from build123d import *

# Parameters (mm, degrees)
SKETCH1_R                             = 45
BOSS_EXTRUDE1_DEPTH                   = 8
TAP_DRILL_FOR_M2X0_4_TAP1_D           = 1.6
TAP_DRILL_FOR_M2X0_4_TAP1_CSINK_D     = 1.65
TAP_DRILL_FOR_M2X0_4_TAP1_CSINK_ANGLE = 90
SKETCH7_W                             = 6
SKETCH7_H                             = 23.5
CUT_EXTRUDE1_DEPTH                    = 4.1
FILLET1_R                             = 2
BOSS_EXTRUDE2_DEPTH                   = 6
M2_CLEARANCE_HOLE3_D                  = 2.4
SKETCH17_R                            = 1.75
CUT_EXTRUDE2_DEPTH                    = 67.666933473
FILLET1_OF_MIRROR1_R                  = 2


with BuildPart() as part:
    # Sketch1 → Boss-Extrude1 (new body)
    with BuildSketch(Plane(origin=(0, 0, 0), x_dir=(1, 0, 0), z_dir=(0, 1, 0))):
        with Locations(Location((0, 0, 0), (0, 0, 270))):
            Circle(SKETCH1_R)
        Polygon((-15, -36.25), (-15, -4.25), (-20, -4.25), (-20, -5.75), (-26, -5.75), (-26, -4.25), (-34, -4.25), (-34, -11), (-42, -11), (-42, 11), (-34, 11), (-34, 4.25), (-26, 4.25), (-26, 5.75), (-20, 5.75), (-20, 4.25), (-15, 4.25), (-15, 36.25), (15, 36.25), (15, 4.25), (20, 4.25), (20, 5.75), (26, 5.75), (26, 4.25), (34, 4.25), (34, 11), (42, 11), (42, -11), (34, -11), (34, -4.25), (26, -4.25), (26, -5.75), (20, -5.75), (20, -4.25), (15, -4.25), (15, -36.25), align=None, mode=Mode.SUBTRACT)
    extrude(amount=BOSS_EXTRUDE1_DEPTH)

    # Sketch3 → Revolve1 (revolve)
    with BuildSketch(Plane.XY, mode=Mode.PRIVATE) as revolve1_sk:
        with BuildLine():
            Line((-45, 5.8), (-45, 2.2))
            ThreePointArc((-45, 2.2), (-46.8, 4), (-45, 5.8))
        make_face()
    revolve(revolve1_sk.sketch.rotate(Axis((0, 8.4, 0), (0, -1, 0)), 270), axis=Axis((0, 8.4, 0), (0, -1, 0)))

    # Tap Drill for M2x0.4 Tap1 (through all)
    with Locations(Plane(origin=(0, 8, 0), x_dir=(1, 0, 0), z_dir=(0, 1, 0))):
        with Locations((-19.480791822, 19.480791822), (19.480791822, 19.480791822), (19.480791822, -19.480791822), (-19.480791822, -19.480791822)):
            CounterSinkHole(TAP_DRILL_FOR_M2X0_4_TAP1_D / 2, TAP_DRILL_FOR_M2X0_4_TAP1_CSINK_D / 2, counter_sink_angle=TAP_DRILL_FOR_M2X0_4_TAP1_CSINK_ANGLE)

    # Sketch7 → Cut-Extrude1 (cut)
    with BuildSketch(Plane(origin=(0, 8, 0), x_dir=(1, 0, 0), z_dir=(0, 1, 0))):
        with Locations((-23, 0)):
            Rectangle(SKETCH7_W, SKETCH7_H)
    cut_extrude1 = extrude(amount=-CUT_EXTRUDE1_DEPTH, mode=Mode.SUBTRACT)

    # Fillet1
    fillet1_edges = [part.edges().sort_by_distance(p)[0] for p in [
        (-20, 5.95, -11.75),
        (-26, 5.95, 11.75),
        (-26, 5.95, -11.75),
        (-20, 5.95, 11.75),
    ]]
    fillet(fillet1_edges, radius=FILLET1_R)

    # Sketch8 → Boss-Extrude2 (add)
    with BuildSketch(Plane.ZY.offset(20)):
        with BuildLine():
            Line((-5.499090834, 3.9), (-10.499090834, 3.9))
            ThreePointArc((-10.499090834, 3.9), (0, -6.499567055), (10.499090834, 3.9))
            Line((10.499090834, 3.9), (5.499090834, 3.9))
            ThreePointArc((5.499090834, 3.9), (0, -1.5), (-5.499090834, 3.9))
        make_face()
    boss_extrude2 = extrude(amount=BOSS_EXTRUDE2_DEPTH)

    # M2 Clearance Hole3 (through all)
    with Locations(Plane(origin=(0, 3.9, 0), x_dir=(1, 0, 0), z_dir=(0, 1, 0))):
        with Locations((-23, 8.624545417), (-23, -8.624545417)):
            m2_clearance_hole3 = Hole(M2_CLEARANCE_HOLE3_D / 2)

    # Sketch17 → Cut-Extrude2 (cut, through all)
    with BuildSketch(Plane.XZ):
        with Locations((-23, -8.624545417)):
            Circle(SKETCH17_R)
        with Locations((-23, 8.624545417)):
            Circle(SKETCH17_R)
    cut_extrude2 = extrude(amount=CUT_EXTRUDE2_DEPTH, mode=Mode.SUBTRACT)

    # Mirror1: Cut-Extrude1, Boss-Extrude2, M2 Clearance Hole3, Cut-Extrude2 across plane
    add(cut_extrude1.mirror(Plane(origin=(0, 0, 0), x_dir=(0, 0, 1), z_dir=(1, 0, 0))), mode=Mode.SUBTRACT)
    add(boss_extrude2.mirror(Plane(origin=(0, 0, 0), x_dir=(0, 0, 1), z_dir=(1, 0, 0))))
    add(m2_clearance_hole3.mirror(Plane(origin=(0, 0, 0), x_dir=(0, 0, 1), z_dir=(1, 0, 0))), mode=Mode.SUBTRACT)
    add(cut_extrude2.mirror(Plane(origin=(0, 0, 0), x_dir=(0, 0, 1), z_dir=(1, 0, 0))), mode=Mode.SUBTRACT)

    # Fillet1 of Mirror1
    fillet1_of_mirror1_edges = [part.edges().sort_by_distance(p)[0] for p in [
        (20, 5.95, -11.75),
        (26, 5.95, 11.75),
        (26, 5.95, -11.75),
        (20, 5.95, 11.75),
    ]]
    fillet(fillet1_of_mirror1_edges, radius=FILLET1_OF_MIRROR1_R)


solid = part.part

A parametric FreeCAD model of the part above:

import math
import FreeCAD as App
import Part
import Sketcher
from FreeCAD import Vector


def edges_at(feature, points):
    """Names of the edges that pass closest to the given points."""
    edges = feature.Shape.Edges
    near = lambda p: min(range(len(edges)), key=lambda i: edges[i].distToShape(Part.Vertex(*p))[0])
    return sorted({f"Edge{near(p) + 1}" for p in points})

doc = App.newDocument("Part")
body = doc.addObject("PartDesign::Body", "Body")

# Sketch on XZ plane
sketch1 = body.newObject("Sketcher::SketchObject", "Sketch")
sketch1.AttachmentSupport = (doc.getObject("XZ_Plane"), [""])
sketch1.MapMode = "FlatFace"
sketch1.addGeometry([
    Part.Circle(Vector(0, 0, 0), Vector(0, 0, 1), 45),  # 0
    Part.LineSegment(Vector(15, 36.25, 0), Vector(-15, 36.25, 0)),  # 1
    Part.LineSegment(Vector(-15, 36.25, 0), Vector(-15, 4.25, 0)),  # 2
    Part.LineSegment(Vector(-15, 4.25, 0), Vector(-20, 4.25, 0)),  # 3
    Part.LineSegment(Vector(-20, 4.25, 0), Vector(-20, 5.75, 0)),  # 4
    Part.LineSegment(Vector(-20, 5.75, 0), Vector(-26, 5.75, 0)),  # 5
    Part.LineSegment(Vector(-26, 5.75, 0), Vector(-26, 4.25, 0)),  # 6
    Part.LineSegment(Vector(-26, 4.25, 0), Vector(-34, 4.25, 0)),  # 7
    Part.LineSegment(Vector(-34, 4.25, 0), Vector(-34, 11, 0)),  # 8
    Part.LineSegment(Vector(-34, 11, 0), Vector(-42, 11, 0)),  # 9
    Part.LineSegment(Vector(-42, 11, 0), Vector(-42, -11, 0)),  # 10
    Part.LineSegment(Vector(-42, -11, 0), Vector(-34, -11, 0)),  # 11
    Part.LineSegment(Vector(-34, -11, 0), Vector(-34, -4.25, 0)),  # 12
    Part.LineSegment(Vector(-34, -4.25, 0), Vector(-26, -4.25, 0)),  # 13
    Part.LineSegment(Vector(-26, -4.25, 0), Vector(-26, -5.75, 0)),  # 14
    Part.LineSegment(Vector(-26, -5.75, 0), Vector(-20, -5.75, 0)),  # 15
    Part.LineSegment(Vector(-20, -5.75, 0), Vector(-20, -4.25, 0)),  # 16
    Part.LineSegment(Vector(-20, -4.25, 0), Vector(-15, -4.25, 0)),  # 17
    Part.LineSegment(Vector(-15, -4.25, 0), Vector(-15, -36.25, 0)),  # 18
    Part.LineSegment(Vector(-15, -36.25, 0), Vector(15, -36.25, 0)),  # 19
    Part.LineSegment(Vector(15, -36.25, 0), Vector(15, -4.25, 0)),  # 20
    Part.LineSegment(Vector(15, -4.25, 0), Vector(20, -4.25, 0)),  # 21
    Part.LineSegment(Vector(20, -4.25, 0), Vector(20, -5.75, 0)),  # 22
    Part.LineSegment(Vector(20, -5.75, 0), Vector(26, -5.75, 0)),  # 23
    Part.LineSegment(Vector(26, -5.75, 0), Vector(26, -4.25, 0)),  # 24
    Part.LineSegment(Vector(26, -4.25, 0), Vector(34, -4.25, 0)),  # 25
    Part.LineSegment(Vector(34, -4.25, 0), Vector(34, -11, 0)),  # 26
    Part.LineSegment(Vector(34, -11, 0), Vector(42, -11, 0)),  # 27
    Part.LineSegment(Vector(42, -11, 0), Vector(42, 11, 0)),  # 28
    Part.LineSegment(Vector(42, 11, 0), Vector(34, 11, 0)),  # 29
    Part.LineSegment(Vector(34, 11, 0), Vector(34, 4.25, 0)),  # 30
    Part.LineSegment(Vector(34, 4.25, 0), Vector(26, 4.25, 0)),  # 31
    Part.LineSegment(Vector(26, 4.25, 0), Vector(26, 5.75, 0)),  # 32
    Part.LineSegment(Vector(26, 5.75, 0), Vector(20, 5.75, 0)),  # 33
    Part.LineSegment(Vector(20, 5.75, 0), Vector(20, 4.25, 0)),  # 34
    Part.LineSegment(Vector(20, 4.25, 0), Vector(15, 4.25, 0)),  # 35
    Part.LineSegment(Vector(15, 4.25, 0), Vector(15, 36.25, 0)),  # 36
], False)
sketch1.addConstraint([
    Sketcher.Constraint("Coincident", 1, 2, 2, 1),
    Sketcher.Constraint("Coincident", 2, 2, 3, 1),
    Sketcher.Constraint("Coincident", 3, 2, 4, 1),
    Sketcher.Constraint("Coincident", 4, 2, 5, 1),
    Sketcher.Constraint("Coincident", 5, 2, 6, 1),
    Sketcher.Constraint("Coincident", 6, 2, 7, 1),
    Sketcher.Constraint("Coincident", 7, 2, 8, 1),
    Sketcher.Constraint("Coincident", 8, 2, 9, 1),
    Sketcher.Constraint("Coincident", 9, 2, 10, 1),
    Sketcher.Constraint("Coincident", 10, 2, 11, 1),
    Sketcher.Constraint("Coincident", 11, 2, 12, 1),
    Sketcher.Constraint("Coincident", 12, 2, 13, 1),
    Sketcher.Constraint("Coincident", 13, 2, 14, 1),
    Sketcher.Constraint("Coincident", 14, 2, 15, 1),
    Sketcher.Constraint("Coincident", 15, 2, 16, 1),
    Sketcher.Constraint("Coincident", 16, 2, 17, 1),
    Sketcher.Constraint("Coincident", 17, 2, 18, 1),
    Sketcher.Constraint("Coincident", 18, 2, 19, 1),
    Sketcher.Constraint("Coincident", 19, 2, 20, 1),
    Sketcher.Constraint("Coincident", 20, 2, 21, 1),
    Sketcher.Constraint("Coincident", 21, 2, 22, 1),
    Sketcher.Constraint("Coincident", 22, 2, 23, 1),
    Sketcher.Constraint("Coincident", 23, 2, 24, 1),
    Sketcher.Constraint("Coincident", 24, 2, 25, 1),
    Sketcher.Constraint("Coincident", 25, 2, 26, 1),
    Sketcher.Constraint("Coincident", 26, 2, 27, 1),
    Sketcher.Constraint("Coincident", 27, 2, 28, 1),
    Sketcher.Constraint("Coincident", 28, 2, 29, 1),
    Sketcher.Constraint("Coincident", 29, 2, 30, 1),
    Sketcher.Constraint("Coincident", 30, 2, 31, 1),
    Sketcher.Constraint("Coincident", 31, 2, 32, 1),
    Sketcher.Constraint("Coincident", 32, 2, 33, 1),
    Sketcher.Constraint("Coincident", 33, 2, 34, 1),
    Sketcher.Constraint("Coincident", 34, 2, 35, 1),
    Sketcher.Constraint("Coincident", 35, 2, 36, 1),
    Sketcher.Constraint("Coincident", 36, 2, 1, 1),
    Sketcher.Constraint("Horizontal", 1),
    Sketcher.Constraint("Vertical", 2),
    Sketcher.Constraint("Horizontal", 3),
    Sketcher.Constraint("Vertical", 4),
    Sketcher.Constraint("Horizontal", 5),
    Sketcher.Constraint("Vertical", 6),
    Sketcher.Constraint("Horizontal", 7),
    Sketcher.Constraint("Vertical", 8),
    Sketcher.Constraint("Horizontal", 9),
    Sketcher.Constraint("Vertical", 10),
    Sketcher.Constraint("Horizontal", 11),
    Sketcher.Constraint("Vertical", 12),
    Sketcher.Constraint("Horizontal", 13),
    Sketcher.Constraint("Vertical", 14),
    Sketcher.Constraint("Horizontal", 15),
    Sketcher.Constraint("Vertical", 16),
    Sketcher.Constraint("Horizontal", 17),
    Sketcher.Constraint("Vertical", 18),
    Sketcher.Constraint("Horizontal", 19),
    Sketcher.Constraint("Vertical", 20),
    Sketcher.Constraint("Horizontal", 21),
    Sketcher.Constraint("Vertical", 22),
    Sketcher.Constraint("Horizontal", 23),
    Sketcher.Constraint("Vertical", 24),
    Sketcher.Constraint("Horizontal", 25),
    Sketcher.Constraint("Vertical", 26),
    Sketcher.Constraint("Horizontal", 27),
    Sketcher.Constraint("Vertical", 28),
    Sketcher.Constraint("Horizontal", 29),
    Sketcher.Constraint("Vertical", 30),
    Sketcher.Constraint("Horizontal", 31),
    Sketcher.Constraint("Vertical", 32),
    Sketcher.Constraint("Horizontal", 33),
    Sketcher.Constraint("Vertical", 34),
    Sketcher.Constraint("Horizontal", 35),
    Sketcher.Constraint("Vertical", 36),
    Sketcher.Constraint("Coincident", 0, 3, -1, 1),
    Sketcher.Constraint("Symmetric", 1, 2, 19, 2, -1, 1),
    Sketcher.Constraint("Symmetric", 3, 2, 21, 2, -1, 1),
    Sketcher.Constraint("Symmetric", 5, 2, 23, 2, -1, 1),
    Sketcher.Constraint("Symmetric", 7, 2, 25, 2, -1, 1),
    Sketcher.Constraint("Symmetric", 9, 2, 27, 2, -1, 1),
    Sketcher.Constraint("Symmetric", 11, 2, 29, 2, -1, 1),
    Sketcher.Constraint("Symmetric", 13, 2, 31, 2, -1, 1),
    Sketcher.Constraint("Symmetric", 15, 2, 33, 2, -1, 1),
    Sketcher.Constraint("Symmetric", 17, 2, 35, 2, -1, 1),
    Sketcher.Constraint("Symmetric", 17, 2, 20, 2, -2),
    Sketcher.Constraint("Symmetric", 15, 2, 22, 2, -2),
    Sketcher.Constraint("Symmetric", 13, 2, 24, 2, -2),
    Sketcher.Constraint("Symmetric", 11, 2, 26, 2, -2),
    Sketcher.Constraint("Horizontal", 3, 2, 6, 2),
    Sketcher.Constraint("Equal", 7, 9),
    Sketcher.Constraint("Diameter", 0, 90.0),
    Sketcher.Constraint("DistanceX", 1, 2, 1, 1, 30.0),
    Sketcher.Constraint("DistanceX", 3, 2, 3, 1, 5.0),
    Sketcher.Constraint("DistanceX", 5, 2, 5, 1, 6.0),
    Sketcher.Constraint("DistanceX", 7, 2, 7, 1, 8.0),
    Sketcher.Constraint("DistanceY", 2, 2, 2, 1, 32.0),
    Sketcher.Constraint("DistanceY", 10, 2, 10, 1, 22.0),
    Sketcher.Constraint("DistanceY", 4, 1, 4, 2, 1.5),
    Sketcher.Constraint("DistanceY", 12, 2, 5, 2, 10.0),
])
pad1 = body.newObject("PartDesign::Pad", "Pad")
pad1.Profile = sketch1
pad1.Length = 8
pad1.Reversed = True

# Sketch on XY plane
sketch2 = body.newObject("Sketcher::SketchObject", "Sketch001")
sketch2.AttachmentSupport = (doc.getObject("XY_Plane"), [""])
sketch2.MapMode = "FlatFace"
sketch2.addGeometry([
    Part.LineSegment(Vector(-45, 2.2, 0), Vector(-45, 5.8, 0)),
    Part.ArcOfCircle(Part.Circle(Vector(-45, 4, 0), Vector(0, 0, 1), 1.8), math.radians(90), math.radians(270)),
], False)
sketch2.addConstraint([
    Sketcher.Constraint("Coincident", 0, 1, 1, 2),
    Sketcher.Constraint("Coincident", 1, 1, 0, 2),
    Sketcher.Constraint("Vertical", 0),
    Sketcher.Constraint("Vertical", 1, 3, 0, 1),
    Sketcher.Constraint("Radius", 1, 1.8),
    Sketcher.Constraint("DistanceX", 1, 3, -1, 1, 45.0),
    Sketcher.Constraint("DistanceY", -1, 1, 1, 3, 4.0),
])
revolution = body.newObject("PartDesign::Revolution", "Revolution")
revolution.Profile = sketch2
revolution.ReferenceAxis = (sketch2, ["V_Axis"])
revolution.Angle = 360

# Sketch on XZ plane
sketch3 = body.newObject("Sketcher::SketchObject", "Sketch002")
sketch3.AttachmentSupport = (doc.getObject("XZ_Plane"), [""])
sketch3.MapMode = "FlatFace"
sketch3.AttachmentOffset = App.Placement(Vector(0, 0, -8), App.Rotation())
sketch3.addGeometry([
    Part.Circle(Vector(-19.480792, -19.480792, 0), Vector(0, 0, 1), 0.8),
    Part.Circle(Vector(19.480792, -19.480792, 0), Vector(0, 0, 1), 0.8),
    Part.Circle(Vector(19.480792, 19.480792, 0), Vector(0, 0, 1), 0.8),
    Part.Circle(Vector(-19.480792, 19.480792, 0), Vector(0, 0, 1), 0.8),
], False)
sketch3.addConstraint([
    Sketcher.Constraint("Equal", 0, 1),
    Sketcher.Constraint("Equal", 1, 2),
    Sketcher.Constraint("Equal", 2, 3),
    Sketcher.Constraint("Symmetric", 0, 3, 2, 3, -1, 1),
    Sketcher.Constraint("Symmetric", 1, 3, 3, 3, -1, 1),
    Sketcher.Constraint("Symmetric", 0, 3, 1, 3, -2),
    Sketcher.Constraint("Diameter", 0, 1.6),
    Sketcher.Constraint("DistanceX", 0, 3, -1, 1, 19.480792),
    Sketcher.Constraint("DistanceY", 0, 3, -1, 1, 19.480792),
])
doc.recompute()
hole = body.newObject("PartDesign::Hole", "Hole")
hole.Profile = sketch3
hole.ThreadType = "None"
hole.Diameter = 1.6
hole.DepthType = "ThroughAll"
hole.HoleCutType = "Countersink"
hole.HoleCutDiameter = 1.65
hole.HoleCutCountersinkAngle = 90
hole.Reversed = True

# Sketch on XZ plane
sketch4 = body.newObject("Sketcher::SketchObject", "Sketch003")
sketch4.AttachmentSupport = (doc.getObject("XZ_Plane"), [""])
sketch4.MapMode = "FlatFace"
sketch4.AttachmentOffset = App.Placement(Vector(0, 0, -8), App.Rotation())
sketch4.addGeometry([
    Part.LineSegment(Vector(-26, -11.75, 0), Vector(-26, 11.75, 0)),
    Part.LineSegment(Vector(-26, 11.75, 0), Vector(-20, 11.75, 0)),
    Part.LineSegment(Vector(-20, 11.75, 0), Vector(-20, -11.75, 0)),
    Part.LineSegment(Vector(-20, -11.75, 0), Vector(-26, -11.75, 0)),
], False)
sketch4.addConstraint([
    Sketcher.Constraint("Coincident", 0, 2, 1, 1),
    Sketcher.Constraint("Coincident", 1, 2, 2, 1),
    Sketcher.Constraint("Coincident", 2, 2, 3, 1),
    Sketcher.Constraint("Coincident", 3, 2, 0, 1),
    Sketcher.Constraint("Vertical", 0),
    Sketcher.Constraint("Horizontal", 1),
    Sketcher.Constraint("Vertical", 2),
    Sketcher.Constraint("Horizontal", 3),
    Sketcher.Constraint("DistanceX", 1, 1, 1, 2, 6.0),
    Sketcher.Constraint("DistanceY", 0, 1, 0, 2, 23.5),
    Sketcher.Constraint("DistanceX", 0, 2, -1, 1, 26.0),
    Sketcher.Constraint("DistanceY", -1, 1, 0, 2, 11.75),
])
pocket1 = body.newObject("PartDesign::Pocket", "Pocket")
pocket1.Profile = sketch4
pocket1.Length = 4.1
pocket1.Reversed = True
doc.recompute()

fillet = body.newObject("PartDesign::Fillet", "Fillet")
fillet.Base = (pocket1, edges_at(pocket1, [
    (-20, 5.95, -11.75),
    (-26, 5.95, 11.75),
    (-26, 5.95, -11.75),
    (-20, 5.95, 11.75),
]))
fillet.Radius = 2

# Sketch on YZ plane
sketch5 = body.newObject("Sketcher::SketchObject", "Sketch004")
sketch5.AttachmentSupport = (doc.getObject("YZ_Plane"), [""])
sketch5.MapMode = "FlatFace"
sketch5.AttachmentOffset = App.Placement(Vector(0, 0, -20), App.Rotation())
sketch5.addGeometry([
    Part.LineSegment(Vector(3.9, -5.499091, 0), Vector(3.9, -10.499091, 0)),
    Part.ArcOfCircle(Part.Circle(Vector(4, 0, 0), Vector(0, 0, 1), 10.499567), math.radians(90.545705), math.radians(269.454295)),
    Part.LineSegment(Vector(3.9, 10.499091, 0), Vector(3.9, 5.499091, 0)),
    Part.ArcOfCircle(Part.Circle(Vector(4, 0, 0), Vector(0, 0, 1), 5.5), math.radians(91.041799), math.radians(268.958201)),
], False)
sketch5.addConstraint([
    Sketcher.Constraint("Coincident", 0, 2, 1, 2),
    Sketcher.Constraint("Coincident", 1, 1, 2, 1),
    Sketcher.Constraint("Coincident", 2, 2, 3, 1),
    Sketcher.Constraint("Coincident", 3, 2, 0, 1),
    Sketcher.Constraint("Vertical", 0),
    Sketcher.Constraint("Vertical", 2),
    Sketcher.Constraint("Coincident", 3, 3, 1, 3),
    Sketcher.Constraint("Symmetric", 0, 2, 1, 1, -1),
    Sketcher.Constraint("Radius", 3, 5.5),
    Sketcher.Constraint("DistanceY", 0, 2, 0, 1, 5.0),
    Sketcher.Constraint("DistanceX", -1, 1, 1, 3, 4.0),
    Sketcher.Constraint("DistanceX", -1, 1, 0, 2, 3.9),
])
pad2 = body.newObject("PartDesign::Pad", "Pad001")
pad2.Profile = sketch5
pad2.Length = 6
pad2.Reversed = True

# Sketch on XZ plane
sketch6 = body.newObject("Sketcher::SketchObject", "Sketch005")
sketch6.AttachmentSupport = (doc.getObject("XZ_Plane"), [""])
sketch6.MapMode = "FlatFace"
sketch6.AttachmentOffset = App.Placement(Vector(0, 0, -3.9), App.Rotation())
sketch6.addGeometry([
    Part.Circle(Vector(-23, -8.624545, 0), Vector(0, 0, 1), 1.2),
    Part.Circle(Vector(-23, 8.624545, 0), Vector(0, 0, 1), 1.2),
], False)
sketch6.addConstraint([
    Sketcher.Constraint("Equal", 0, 1),
    Sketcher.Constraint("Symmetric", 0, 3, 1, 3, -1),
    Sketcher.Constraint("Diameter", 0, 2.4),
    Sketcher.Constraint("DistanceX", 0, 3, -1, 1, 23.0),
    Sketcher.Constraint("DistanceY", 0, 3, 1, 3, 17.249091),
])
doc.recompute()
hole2 = body.newObject("PartDesign::Hole", "Hole001")
hole2.Profile = sketch6
hole2.ThreadType = "None"
hole2.Diameter = 2.4
hole2.DepthType = "ThroughAll"
hole2.Reversed = True

# Sketch on XZ plane
sketch7 = body.newObject("Sketcher::SketchObject", "Sketch006")
sketch7.AttachmentSupport = (doc.getObject("XZ_Plane"), [""])
sketch7.MapMode = "FlatFace"
sketch7.addGeometry([
    Part.Circle(Vector(-23, -8.624545, 0), Vector(0, 0, 1), 1.75),
    Part.Circle(Vector(-23, 8.624545, 0), Vector(0, 0, 1), 1.75),
], False)
sketch7.addConstraint([
    Sketcher.Constraint("Equal", 0, 1),
    Sketcher.Constraint("Symmetric", 0, 3, 1, 3, -1),
    Sketcher.Constraint("Diameter", 0, 3.5),
    Sketcher.Constraint("DistanceX", 0, 3, -1, 1, 23.0),
    Sketcher.Constraint("DistanceY", 0, 3, 1, 3, 17.249091),
])
pocket2 = body.newObject("PartDesign::Pocket", "Pocket001")
pocket2.Profile = sketch7
pocket2.Type = "ThroughAll"
pocket2.Reversed = True
doc.recompute()

mirrored = body.newObject("PartDesign::Mirrored", "Mirrored")
mirrored.Originals = [pocket1, pad2, hole2, pocket2]
mirrored.MirrorPlane = (doc.getObject("YZ_Plane"), [""])
body.Tip = mirrored
doc.recompute()

fillet2 = body.newObject("PartDesign::Fillet", "Fillet001")
fillet2.Base = (mirrored, edges_at(mirrored, [
    (20, 5.95, -11.75),
    (26, 5.95, 11.75),
    (26, 5.95, -11.75),
    (20, 5.95, 11.75),
]))
fillet2.Radius = 2

doc.recompute()
